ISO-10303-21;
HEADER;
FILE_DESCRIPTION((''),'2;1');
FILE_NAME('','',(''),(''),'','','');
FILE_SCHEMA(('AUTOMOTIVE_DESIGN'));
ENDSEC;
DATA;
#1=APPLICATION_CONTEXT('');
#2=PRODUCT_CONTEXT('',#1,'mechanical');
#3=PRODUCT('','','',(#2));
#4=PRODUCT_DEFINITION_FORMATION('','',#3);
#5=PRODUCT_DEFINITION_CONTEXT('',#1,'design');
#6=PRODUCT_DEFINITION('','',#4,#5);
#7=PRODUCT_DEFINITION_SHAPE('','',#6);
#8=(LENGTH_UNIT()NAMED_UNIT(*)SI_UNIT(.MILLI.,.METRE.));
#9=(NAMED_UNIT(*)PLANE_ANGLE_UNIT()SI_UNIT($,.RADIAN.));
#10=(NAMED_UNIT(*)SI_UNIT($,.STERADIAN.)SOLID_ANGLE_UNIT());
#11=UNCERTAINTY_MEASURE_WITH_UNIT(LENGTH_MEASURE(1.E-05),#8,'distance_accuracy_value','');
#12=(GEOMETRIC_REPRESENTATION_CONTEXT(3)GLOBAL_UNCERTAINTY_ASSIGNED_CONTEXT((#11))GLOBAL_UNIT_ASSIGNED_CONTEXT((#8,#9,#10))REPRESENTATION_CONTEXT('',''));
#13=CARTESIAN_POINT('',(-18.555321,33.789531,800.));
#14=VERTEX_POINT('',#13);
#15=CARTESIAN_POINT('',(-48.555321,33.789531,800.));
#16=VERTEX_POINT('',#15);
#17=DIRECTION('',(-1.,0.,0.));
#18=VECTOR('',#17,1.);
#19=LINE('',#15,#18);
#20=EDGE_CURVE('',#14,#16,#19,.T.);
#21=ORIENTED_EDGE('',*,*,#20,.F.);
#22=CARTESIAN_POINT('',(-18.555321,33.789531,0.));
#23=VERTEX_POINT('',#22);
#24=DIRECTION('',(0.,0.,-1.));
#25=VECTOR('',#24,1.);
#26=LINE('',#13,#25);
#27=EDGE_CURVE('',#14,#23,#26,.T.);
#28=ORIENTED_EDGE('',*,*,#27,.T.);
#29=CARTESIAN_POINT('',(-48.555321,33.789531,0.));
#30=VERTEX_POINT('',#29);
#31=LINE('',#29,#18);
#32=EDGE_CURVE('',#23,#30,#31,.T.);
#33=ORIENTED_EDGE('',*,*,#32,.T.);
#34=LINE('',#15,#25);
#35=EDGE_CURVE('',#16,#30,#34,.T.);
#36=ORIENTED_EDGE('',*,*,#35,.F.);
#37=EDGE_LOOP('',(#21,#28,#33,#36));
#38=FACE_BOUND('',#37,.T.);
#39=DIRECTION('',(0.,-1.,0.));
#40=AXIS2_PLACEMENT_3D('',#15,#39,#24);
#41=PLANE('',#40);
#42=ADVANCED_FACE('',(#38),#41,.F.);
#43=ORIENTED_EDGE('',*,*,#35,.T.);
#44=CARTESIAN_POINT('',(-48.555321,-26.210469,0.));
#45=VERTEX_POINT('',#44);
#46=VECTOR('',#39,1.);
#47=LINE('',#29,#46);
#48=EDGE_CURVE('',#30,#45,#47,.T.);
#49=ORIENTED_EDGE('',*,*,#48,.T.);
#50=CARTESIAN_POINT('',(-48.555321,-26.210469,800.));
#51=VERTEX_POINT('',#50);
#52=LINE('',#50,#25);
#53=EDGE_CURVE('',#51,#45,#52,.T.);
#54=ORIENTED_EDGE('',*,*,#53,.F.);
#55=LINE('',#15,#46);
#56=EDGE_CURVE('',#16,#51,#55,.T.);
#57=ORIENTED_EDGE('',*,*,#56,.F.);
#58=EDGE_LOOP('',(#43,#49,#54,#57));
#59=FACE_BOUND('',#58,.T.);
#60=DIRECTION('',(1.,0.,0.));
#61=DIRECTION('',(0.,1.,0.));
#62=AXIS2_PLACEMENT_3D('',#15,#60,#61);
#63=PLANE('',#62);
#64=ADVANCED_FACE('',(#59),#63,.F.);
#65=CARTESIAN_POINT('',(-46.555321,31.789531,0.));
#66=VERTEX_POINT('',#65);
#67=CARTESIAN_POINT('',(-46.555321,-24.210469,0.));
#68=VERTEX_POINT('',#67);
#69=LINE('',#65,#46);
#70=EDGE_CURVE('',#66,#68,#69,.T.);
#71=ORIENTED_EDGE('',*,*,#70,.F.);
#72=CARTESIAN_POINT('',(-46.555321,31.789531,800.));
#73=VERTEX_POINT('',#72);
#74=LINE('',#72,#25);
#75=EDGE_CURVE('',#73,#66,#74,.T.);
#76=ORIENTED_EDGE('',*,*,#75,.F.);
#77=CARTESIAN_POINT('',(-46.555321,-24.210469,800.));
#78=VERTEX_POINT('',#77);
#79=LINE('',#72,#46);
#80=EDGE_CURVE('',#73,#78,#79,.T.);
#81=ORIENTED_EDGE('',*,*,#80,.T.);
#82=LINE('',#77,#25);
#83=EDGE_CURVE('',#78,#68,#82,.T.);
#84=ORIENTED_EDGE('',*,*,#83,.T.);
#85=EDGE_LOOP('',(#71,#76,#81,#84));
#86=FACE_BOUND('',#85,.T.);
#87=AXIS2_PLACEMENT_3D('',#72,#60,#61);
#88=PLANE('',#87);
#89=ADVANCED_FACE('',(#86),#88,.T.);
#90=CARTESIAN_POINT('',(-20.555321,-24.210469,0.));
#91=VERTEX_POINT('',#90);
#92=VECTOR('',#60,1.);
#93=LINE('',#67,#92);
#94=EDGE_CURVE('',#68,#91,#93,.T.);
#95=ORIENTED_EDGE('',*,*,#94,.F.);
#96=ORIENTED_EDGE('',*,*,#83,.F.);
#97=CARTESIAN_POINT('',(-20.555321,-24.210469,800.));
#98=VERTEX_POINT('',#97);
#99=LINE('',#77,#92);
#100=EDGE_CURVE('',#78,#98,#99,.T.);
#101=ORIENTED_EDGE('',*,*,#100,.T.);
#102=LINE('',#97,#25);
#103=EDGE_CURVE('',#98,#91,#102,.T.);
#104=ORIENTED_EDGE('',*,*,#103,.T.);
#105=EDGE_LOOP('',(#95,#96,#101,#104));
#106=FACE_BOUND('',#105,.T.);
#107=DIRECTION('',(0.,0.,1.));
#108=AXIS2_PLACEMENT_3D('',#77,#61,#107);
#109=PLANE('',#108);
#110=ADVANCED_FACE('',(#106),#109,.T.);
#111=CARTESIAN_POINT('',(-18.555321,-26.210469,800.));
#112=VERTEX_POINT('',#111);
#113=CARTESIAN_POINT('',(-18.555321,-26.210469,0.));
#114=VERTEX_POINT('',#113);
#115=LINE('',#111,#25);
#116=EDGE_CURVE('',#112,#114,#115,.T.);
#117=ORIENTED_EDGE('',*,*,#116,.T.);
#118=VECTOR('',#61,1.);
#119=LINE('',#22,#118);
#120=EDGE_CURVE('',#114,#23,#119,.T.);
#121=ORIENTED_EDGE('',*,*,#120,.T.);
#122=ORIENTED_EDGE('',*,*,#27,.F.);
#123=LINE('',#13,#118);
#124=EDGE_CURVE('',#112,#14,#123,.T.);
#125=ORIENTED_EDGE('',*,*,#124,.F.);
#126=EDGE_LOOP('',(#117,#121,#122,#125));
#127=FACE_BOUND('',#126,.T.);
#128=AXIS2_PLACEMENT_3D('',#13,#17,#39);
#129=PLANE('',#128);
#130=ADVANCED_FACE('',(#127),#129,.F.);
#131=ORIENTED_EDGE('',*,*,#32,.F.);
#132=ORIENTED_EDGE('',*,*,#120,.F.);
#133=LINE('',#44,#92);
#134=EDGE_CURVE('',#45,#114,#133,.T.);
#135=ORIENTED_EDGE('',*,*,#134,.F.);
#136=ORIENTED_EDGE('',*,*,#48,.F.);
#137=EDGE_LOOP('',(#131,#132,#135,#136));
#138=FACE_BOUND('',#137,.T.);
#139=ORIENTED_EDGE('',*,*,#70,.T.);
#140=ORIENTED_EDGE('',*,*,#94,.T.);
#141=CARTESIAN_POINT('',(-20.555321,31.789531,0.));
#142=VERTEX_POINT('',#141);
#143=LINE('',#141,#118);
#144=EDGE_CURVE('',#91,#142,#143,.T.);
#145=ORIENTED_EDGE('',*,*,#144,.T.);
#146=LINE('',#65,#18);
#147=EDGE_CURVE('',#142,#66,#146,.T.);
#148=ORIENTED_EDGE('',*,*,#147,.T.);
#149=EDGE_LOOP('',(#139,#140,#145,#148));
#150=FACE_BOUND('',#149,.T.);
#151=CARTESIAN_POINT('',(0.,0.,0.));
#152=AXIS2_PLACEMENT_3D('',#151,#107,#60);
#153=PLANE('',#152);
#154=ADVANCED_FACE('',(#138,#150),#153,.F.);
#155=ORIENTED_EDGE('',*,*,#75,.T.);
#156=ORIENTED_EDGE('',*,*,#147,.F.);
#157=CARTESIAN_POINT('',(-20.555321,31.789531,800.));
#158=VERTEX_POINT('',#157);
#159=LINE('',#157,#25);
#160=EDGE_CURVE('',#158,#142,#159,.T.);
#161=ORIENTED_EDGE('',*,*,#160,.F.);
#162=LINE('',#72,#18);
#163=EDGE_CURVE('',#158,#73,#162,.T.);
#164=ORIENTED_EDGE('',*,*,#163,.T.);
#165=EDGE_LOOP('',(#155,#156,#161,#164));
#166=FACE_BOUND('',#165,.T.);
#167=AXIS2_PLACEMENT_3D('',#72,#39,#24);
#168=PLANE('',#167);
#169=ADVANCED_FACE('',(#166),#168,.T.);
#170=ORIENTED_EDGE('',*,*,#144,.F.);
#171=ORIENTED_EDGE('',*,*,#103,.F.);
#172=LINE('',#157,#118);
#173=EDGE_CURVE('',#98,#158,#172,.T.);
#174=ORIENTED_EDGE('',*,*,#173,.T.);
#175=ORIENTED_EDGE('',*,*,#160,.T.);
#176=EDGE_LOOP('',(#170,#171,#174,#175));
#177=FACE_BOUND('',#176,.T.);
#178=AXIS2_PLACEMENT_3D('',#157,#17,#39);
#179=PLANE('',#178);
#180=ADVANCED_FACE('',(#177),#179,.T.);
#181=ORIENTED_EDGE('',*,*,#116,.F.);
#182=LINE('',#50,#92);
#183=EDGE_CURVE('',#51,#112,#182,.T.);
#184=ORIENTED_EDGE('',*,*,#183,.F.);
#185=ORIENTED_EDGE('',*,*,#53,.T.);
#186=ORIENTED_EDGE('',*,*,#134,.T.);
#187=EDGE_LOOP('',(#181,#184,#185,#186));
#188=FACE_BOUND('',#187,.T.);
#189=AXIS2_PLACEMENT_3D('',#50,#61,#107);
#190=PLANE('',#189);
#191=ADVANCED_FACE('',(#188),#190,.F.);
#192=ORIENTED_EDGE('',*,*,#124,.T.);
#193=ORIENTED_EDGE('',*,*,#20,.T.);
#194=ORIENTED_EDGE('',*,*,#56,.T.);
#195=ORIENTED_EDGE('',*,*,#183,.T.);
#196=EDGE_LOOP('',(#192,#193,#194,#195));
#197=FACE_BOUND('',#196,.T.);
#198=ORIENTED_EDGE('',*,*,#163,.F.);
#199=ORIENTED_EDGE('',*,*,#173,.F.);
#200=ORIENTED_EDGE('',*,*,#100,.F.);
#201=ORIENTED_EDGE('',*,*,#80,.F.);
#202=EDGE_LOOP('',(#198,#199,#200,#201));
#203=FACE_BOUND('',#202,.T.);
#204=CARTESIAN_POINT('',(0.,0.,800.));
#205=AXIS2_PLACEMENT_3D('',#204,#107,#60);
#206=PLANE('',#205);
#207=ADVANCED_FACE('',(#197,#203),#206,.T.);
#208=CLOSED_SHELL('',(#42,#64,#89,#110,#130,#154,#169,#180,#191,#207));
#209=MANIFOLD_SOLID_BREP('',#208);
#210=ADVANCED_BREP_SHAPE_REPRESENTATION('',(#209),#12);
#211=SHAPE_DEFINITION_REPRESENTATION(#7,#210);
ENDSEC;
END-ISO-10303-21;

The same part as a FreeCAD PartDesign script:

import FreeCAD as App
import Part
import Sketcher

V = App.Vector
Q = App.Units.Quantity

doc = App.newDocument("Part")
body = doc.addObject("PartDesign::Body", "Body")

# Sketch on XY plane
sketch1 = body.newObject("Sketcher::SketchObject", "Sketch")
sketch1.AttachmentSupport = (doc.getObject("XY_Plane"), [""])
sketch1.MapMode = "FlatFace"
sketch1.addGeometry(Part.LineSegment(V(-49, 34, 0), V(-49, -26, 0)), False)
sketch1.addGeometry(Part.LineSegment(V(-49, -26, 0), V(-19, -26, 0)), False)
sketch1.addGeometry(Part.LineSegment(V(-19, -26, 0), V(-19, 34, 0)), False)
sketch1.addGeometry(Part.LineSegment(V(-19, 34, 0), V(-49, 34, 0)), False)
sketch1.addGeometry(Part.LineSegment(V(-21, -24, 0), V(-47, -24, 0)), False)
sketch1.addGeometry(Part.LineSegment(V(-47, -24, 0), V(-47, 32, 0)), False)
sketch1.addGeometry(Part.LineSegment(V(-47, 32, 0), V(-21, 32, 0)), False)
sketch1.addGeometry(Part.LineSegment(V(-21, 32, 0), V(-21, -24, 0)), False)
sketch1.addConstraint(Sketcher.Constraint("Coincident", 0, 2, 1, 1))
sketch1.addConstraint(Sketcher.Constraint("Coincident", 1, 2, 2, 1))
sketch1.addConstraint(Sketcher.Constraint("Coincident", 2, 2, 3, 1))
sketch1.addConstraint(Sketcher.Constraint("Coincident", 3, 2, 0, 1))
sketch1.addConstraint(Sketcher.Constraint("Coincident", 4, 2, 5, 1))
sketch1.addConstraint(Sketcher.Constraint("Coincident", 5, 2, 6, 1))
sketch1.addConstraint(Sketcher.Constraint("Coincident", 6, 2, 7, 1))
sketch1.addConstraint(Sketcher.Constraint("Coincident", 7, 2, 4, 1))
sketch1.addConstraint(Sketcher.Constraint("Vertical", 0))
sketch1.addConstraint(Sketcher.Constraint("Horizontal", 1))
sketch1.addConstraint(Sketcher.Constraint("Vertical", 2))
sketch1.addConstraint(Sketcher.Constraint("Horizontal", 3))
sketch1.addConstraint(Sketcher.Constraint("Horizontal", 4))
sketch1.addConstraint(Sketcher.Constraint("Vertical", 5))
sketch1.addConstraint(Sketcher.Constraint("Horizontal", 6))
sketch1.addConstraint(Sketcher.Constraint("Vertical", 7))
sketch1.addConstraint(Sketcher.Constraint("DistanceX", 1, 1, 1, 2, Q("30 mm")))
sketch1.addConstraint(Sketcher.Constraint("DistanceX", 4, 2, 4, 1, Q("26 mm")))
sketch1.addConstraint(Sketcher.Constraint("DistanceY", 0, 2, 0, 1, Q("60 mm")))
sketch1.addConstraint(Sketcher.Constraint("DistanceY", 5, 1, 5, 2, Q("56 mm")))
sketch1.addConstraint(Sketcher.Constraint("DistanceX", 0, 2, 4, 2, Q("2 mm")))
sketch1.addConstraint(Sketcher.Constraint("DistanceY", 0, 2, 4, 2, Q("2 mm")))
sketch1.addConstraint(Sketcher.Constraint("DistanceX", 0, 2, -1, 1, Q("48.555321 mm")))
sketch1.addConstraint(Sketcher.Constraint("DistanceY", 0, 2, -1, 1, Q("26.210469 mm")))
pad1 = body.newObject("PartDesign::Pad", "Pad")
pad1.Profile = sketch1
pad1.Length = 800

doc.recompute()
